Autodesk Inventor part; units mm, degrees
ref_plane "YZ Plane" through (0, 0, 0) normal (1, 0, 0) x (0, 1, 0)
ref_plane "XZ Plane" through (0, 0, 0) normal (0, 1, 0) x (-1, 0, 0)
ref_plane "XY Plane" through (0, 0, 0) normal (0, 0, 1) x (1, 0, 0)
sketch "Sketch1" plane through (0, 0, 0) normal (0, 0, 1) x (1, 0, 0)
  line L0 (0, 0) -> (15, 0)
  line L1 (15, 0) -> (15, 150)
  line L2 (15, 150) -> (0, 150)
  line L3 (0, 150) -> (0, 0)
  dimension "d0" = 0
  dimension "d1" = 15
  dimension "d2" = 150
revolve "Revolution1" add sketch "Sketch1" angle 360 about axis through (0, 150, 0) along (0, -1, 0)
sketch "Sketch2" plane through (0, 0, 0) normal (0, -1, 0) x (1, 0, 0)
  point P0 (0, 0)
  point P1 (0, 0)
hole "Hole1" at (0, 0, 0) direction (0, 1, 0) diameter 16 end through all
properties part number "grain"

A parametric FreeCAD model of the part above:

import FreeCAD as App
import Part
import Sketcher

V = App.Vector


def add_polygon(sketch, points):
    """Adds a closed chain of lines whose ends are joined by coincident constraints."""
    first, n = sketch.GeometryCount, len(points)
    for a, b in zip(points, points[1:] + points[:1]):
        sketch.addGeometry(Part.LineSegment(App.Vector(*a, 0), App.Vector(*b, 0)), False)
    for i in range(n):
        sketch.addConstraint(Sketcher.Constraint("Coincident", first + i, 2, first + (i + 1) % n, 1))

doc = App.newDocument("Part")
body = doc.addObject("PartDesign::Body", "Body")

sketch1 = body.newObject("Sketcher::SketchObject", "Sketch")
sketch1.AttachmentSupport = (doc.getObject("XY_Plane"), [""])
sketch1.MapMode = "FlatFace"
add_polygon(sketch1, [(0, 150), (0, 0), (15, 0), (15, 150)])
sketch1.addConstraint([
    Sketcher.Constraint("Vertical", 0),
    Sketcher.Constraint("Horizontal", 1),
    Sketcher.Constraint("Vertical", 2),
    Sketcher.Constraint("Horizontal", 3),
    Sketcher.Constraint("Coincident", 0, 2, -1, 1),
    Sketcher.Constraint("DistanceX", 1, 1, 1, 2, 15.0),
    Sketcher.Constraint("DistanceY", 0, 2, 0, 1, 150.0),
])
revolution = body.newObject("PartDesign::Revolution", "Revolution")
revolution.Profile = sketch1
revolution.ReferenceAxis = (sketch1, ["V_Axis"])
revolution.Angle = 360

sketch2 = body.newObject("Sketcher::SketchObject", "Sketch001")
sketch2.AttachmentSupport = (doc.getObject("XZ_Plane"), [""])
sketch2.MapMode = "FlatFace"
sketch2.addGeometry(Part.Circle(V(0, 0, 0), V(0, 0, 1), 8), False)
sketch2.addConstraint([
    Sketcher.Constraint("Coincident", 0, 3, -1, 1),
    Sketcher.Constraint("Diameter", 0, 16.0),
])
doc.recompute()
hole = body.newObject("PartDesign::Hole", "Hole")
hole.Profile = sketch2
hole.ThreadType = "None"
hole.Diameter = 16
hole.DepthType = "ThroughAll"

doc.recompute()
